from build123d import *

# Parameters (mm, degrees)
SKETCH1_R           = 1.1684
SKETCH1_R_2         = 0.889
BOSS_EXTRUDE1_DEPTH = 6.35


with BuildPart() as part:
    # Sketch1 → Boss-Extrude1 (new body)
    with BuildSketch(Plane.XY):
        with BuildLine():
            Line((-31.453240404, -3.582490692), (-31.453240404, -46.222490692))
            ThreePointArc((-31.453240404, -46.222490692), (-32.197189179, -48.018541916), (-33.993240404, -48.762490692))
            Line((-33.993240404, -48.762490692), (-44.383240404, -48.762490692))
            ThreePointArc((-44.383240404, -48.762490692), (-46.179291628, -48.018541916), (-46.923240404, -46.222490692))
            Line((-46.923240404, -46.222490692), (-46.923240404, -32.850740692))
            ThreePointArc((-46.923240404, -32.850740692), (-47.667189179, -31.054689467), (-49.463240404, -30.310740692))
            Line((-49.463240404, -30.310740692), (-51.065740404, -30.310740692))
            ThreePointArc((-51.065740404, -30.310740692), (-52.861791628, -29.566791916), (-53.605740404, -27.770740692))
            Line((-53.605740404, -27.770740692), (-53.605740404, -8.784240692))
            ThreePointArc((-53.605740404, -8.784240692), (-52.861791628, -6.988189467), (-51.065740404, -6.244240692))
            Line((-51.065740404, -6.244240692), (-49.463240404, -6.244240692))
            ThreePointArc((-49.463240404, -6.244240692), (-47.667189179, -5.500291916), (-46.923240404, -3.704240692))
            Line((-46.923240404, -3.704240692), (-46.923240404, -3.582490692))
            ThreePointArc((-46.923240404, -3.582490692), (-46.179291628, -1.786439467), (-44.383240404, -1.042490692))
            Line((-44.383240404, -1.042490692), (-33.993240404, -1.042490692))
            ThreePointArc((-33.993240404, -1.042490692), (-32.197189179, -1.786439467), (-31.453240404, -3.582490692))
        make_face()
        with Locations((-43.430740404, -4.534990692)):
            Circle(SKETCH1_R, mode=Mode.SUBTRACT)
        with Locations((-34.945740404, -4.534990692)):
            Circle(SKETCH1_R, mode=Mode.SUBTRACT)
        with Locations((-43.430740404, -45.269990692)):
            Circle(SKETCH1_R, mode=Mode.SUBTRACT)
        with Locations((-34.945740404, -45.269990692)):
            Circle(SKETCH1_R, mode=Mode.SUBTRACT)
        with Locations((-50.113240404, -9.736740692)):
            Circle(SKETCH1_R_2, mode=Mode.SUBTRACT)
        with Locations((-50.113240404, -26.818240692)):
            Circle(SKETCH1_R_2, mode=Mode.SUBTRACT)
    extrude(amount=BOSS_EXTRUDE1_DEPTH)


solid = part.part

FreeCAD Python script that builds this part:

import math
import FreeCAD as App
import Part
import Sketcher
from FreeCAD import Vector
Q = App.Units.Quantity

doc = App.newDocument("Part")
body = doc.addObject("PartDesign::Body", "Body")

# Sketch on XY plane
sketch1 = body.newObject("Sketcher::SketchObject", "Sketch")
sketch1.AttachmentSupport = (doc.getObject("XY_Plane"), [""])
sketch1.MapMode = "FlatFace"
sketch1.addGeometry([
    Part.LineSegment(Vector(-31.45, -46.22, 0), Vector(-31.45, -3.58, 0)),  # 0
    Part.ArcOfCircle(Part.Circle(Vector(-33.99, -3.58, 0), Vector(0, 0, 1), 2.54), math.radians(0), math.radians(90)),  # 1
    Part.LineSegment(Vector(-33.99, -1.04, 0), Vector(-44.38, -1.04, 0)),  # 2
    Part.ArcOfCircle(Part.Circle(Vector(-44.38, -3.58, 0), Vector(0, 0, 1), 2.54), math.radians(90), math.radians(180)),  # 3
    Part.LineSegment(Vector(-46.92, -3.58, 0), Vector(-46.92, -3.7, 0)),  # 4
    Part.ArcOfCircle(Part.Circle(Vector(-49.46, -3.7, 0), Vector(0, 0, 1), 2.54), math.radians(-90), math.radians(0)),  # 5
    Part.LineSegment(Vector(-49.46, -6.24, 0), Vector(-51.07, -6.24, 0)),  # 6
    Part.ArcOfCircle(Part.Circle(Vector(-51.07, -8.78, 0), Vector(0, 0, 1), 2.54), math.radians(90), math.radians(180)),  # 7
    Part.LineSegment(Vector(-53.61, -8.78, 0), Vector(-53.61, -27.77, 0)),  # 8
    Part.ArcOfCircle(Part.Circle(Vector(-51.07, -27.77, 0), Vector(0, 0, 1), 2.54), math.radians(-180), math.radians(-90)),  # 9
    Part.LineSegment(Vector(-51.07, -30.31, 0), Vector(-49.46, -30.31, 0)),  # 10
    Part.ArcOfCircle(Part.Circle(Vector(-49.46, -32.85, 0), Vector(0, 0, 1), 2.54), math.radians(0), math.radians(90)),  # 11
    Part.LineSegment(Vector(-46.92, -32.85, 0), Vector(-46.92, -46.22, 0)),  # 12
    Part.ArcOfCircle(Part.Circle(Vector(-44.38, -46.22, 0), Vector(0, 0, 1), 2.54), math.radians(-180), math.radians(-90)),  # 13
    Part.LineSegment(Vector(-44.38, -48.76, 0), Vector(-33.99, -48.76, 0)),  # 14
    Part.ArcOfCircle(Part.Circle(Vector(-33.99, -46.22, 0), Vector(0, 0, 1), 2.54), math.radians(-90), math.radians(0)),  # 15
    Part.Circle(Vector(-34.95, -45.27, 0), Vector(0, 0, 1), 1.17),  # 16
    Part.Circle(Vector(-43.43, -45.27, 0), Vector(0, 0, 1), 1.17),  # 17
    Part.Circle(Vector(-50.11, -26.82, 0), Vector(0, 0, 1), 0.89),  # 18
    Part.Circle(Vector(-34.95, -4.53, 0), Vector(0, 0, 1), 1.17),  # 19
    Part.Circle(Vector(-43.43, -4.53, 0), Vector(0, 0, 1), 1.17),  # 20
    Part.Circle(Vector(-50.11, -9.74, 0), Vector(0, 0, 1), 0.89),  # 21
], False)
sketch1.addConstraint([
    Sketcher.Constraint("Tangent", 0, 2, 1, 1),
    Sketcher.Constraint("Tangent", 1, 2, 2, 1),
    Sketcher.Constraint("Tangent", 2, 2, 3, 1),
    Sketcher.Constraint("Tangent", 3, 2, 4, 1),
    Sketcher.Constraint("Tangent", 4, 2, 5, 2),
    Sketcher.Constraint("Tangent", 5, 1, 6, 1),
    Sketcher.Constraint("Tangent", 6, 2, 7, 1),
    Sketcher.Constraint("Tangent", 7, 2, 8, 1),
    Sketcher.Constraint("Tangent", 8, 2, 9, 1),
    Sketcher.Constraint("Tangent", 9, 2, 10, 1),
    Sketcher.Constraint("Tangent", 10, 2, 11, 2),
    Sketcher.Constraint("Tangent", 11, 1, 12, 1),
    Sketcher.Constraint("Tangent", 12, 2, 13, 1),
    Sketcher.Constraint("Tangent", 13, 2, 14, 1),
    Sketcher.Constraint("Tangent", 14, 2, 15, 1),
    Sketcher.Constraint("Tangent", 15, 2, 0, 1),
    Sketcher.Constraint("Vertical", 0),
    Sketcher.Constraint("Horizontal", 2),
    Sketcher.Constraint("Vertical", 4),
    Sketcher.Constraint("Horizontal", 6),
    Sketcher.Constraint("Vertical", 8),
    Sketcher.Constraint("Horizontal", 10),
    Sketcher.Constraint("Vertical", 12),
    Sketcher.Constraint("Horizontal", 14),
    Sketcher.Constraint("Equal", 1, 3),
    Sketcher.Constraint("Equal", 3, 5),
    Sketcher.Constraint("Equal", 5, 7),
    Sketcher.Constraint("Equal", 7, 9),
    Sketcher.Constraint("Equal", 9, 11),
    Sketcher.Constraint("Equal", 11, 13),
    Sketcher.Constraint("Equal", 13, 15),
    Sketcher.Constraint("Equal", 16, 17),
    Sketcher.Constraint("Equal", 17, 19),
    Sketcher.Constraint("Equal", 19, 20),
    Sketcher.Constraint("Equal", 18, 21),
    Sketcher.Constraint("Horizontal", 16, 3, 17, 3),
    Sketcher.Constraint("Horizontal", 19, 3, 20, 3),
    Sketcher.Constraint("Vertical", 5, 3, 11, 3),
    Sketcher.Constraint("Vertical", 16, 3, 19, 3),
    Sketcher.Constraint("Vertical", 17, 3, 20, 3),
    Sketcher.Constraint("Vertical", 18, 3, 21, 3),
    Sketcher.Constraint("Radius", 1, Q("0.1 in")),
    Sketcher.Constraint("Diameter", 18, Q("0.07 in")),
    Sketcher.Constraint("Diameter", 16, Q("0.092 in")),
    Sketcher.Constraint("DistanceY", 18, 3, 7, 3, Q("0.71 in")),
    Sketcher.Constraint("DistanceY", 8, 2, 21, 3, Q("0.71 in")),
    Sketcher.Constraint("DistanceY", 8, 2, 8, 1, Q("0.7475 in")),
    Sketcher.Constraint("DistanceX", 2, 2, 2, 1, Q("10.39 mm")),
    Sketcher.Constraint("DistanceX", 6, 2, 6, 1, Q("1.6025 mm")),
    Sketcher.Constraint("DistanceY", 0, 1, 0, 2, Q("42.64 mm")),
    Sketcher.Constraint("DistanceX", 16, 3, 15, 3, Q("0.0375 in")),
    Sketcher.Constraint("DistanceY", 15, 3, 16, 3, Q("0.0375 in")),
    Sketcher.Constraint("DistanceX", 13, 3, 17, 3, Q("0.0375 in")),
    Sketcher.Constraint("DistanceX", 9, 3, 18, 3, Q("0.0375 in")),
    Sketcher.Constraint("DistanceY", 19, 3, 1, 3, Q("0.0375 in")),
    Sketcher.Constraint("DistanceY", 4, 2, 4, 1, Q("0.12175 mm")),
    Sketcher.Constraint("DistanceX", 1, 3, -1, 1, Q("33.99324 mm")),
    Sketcher.Constraint("DistanceY", 1, 3, -1, 1, Q("3.582491 mm")),
])
pad1 = body.newObject("PartDesign::Pad", "Pad")
pad1.Profile = sketch1
pad1.Length = Q("0.25 in")

doc.recompute()
